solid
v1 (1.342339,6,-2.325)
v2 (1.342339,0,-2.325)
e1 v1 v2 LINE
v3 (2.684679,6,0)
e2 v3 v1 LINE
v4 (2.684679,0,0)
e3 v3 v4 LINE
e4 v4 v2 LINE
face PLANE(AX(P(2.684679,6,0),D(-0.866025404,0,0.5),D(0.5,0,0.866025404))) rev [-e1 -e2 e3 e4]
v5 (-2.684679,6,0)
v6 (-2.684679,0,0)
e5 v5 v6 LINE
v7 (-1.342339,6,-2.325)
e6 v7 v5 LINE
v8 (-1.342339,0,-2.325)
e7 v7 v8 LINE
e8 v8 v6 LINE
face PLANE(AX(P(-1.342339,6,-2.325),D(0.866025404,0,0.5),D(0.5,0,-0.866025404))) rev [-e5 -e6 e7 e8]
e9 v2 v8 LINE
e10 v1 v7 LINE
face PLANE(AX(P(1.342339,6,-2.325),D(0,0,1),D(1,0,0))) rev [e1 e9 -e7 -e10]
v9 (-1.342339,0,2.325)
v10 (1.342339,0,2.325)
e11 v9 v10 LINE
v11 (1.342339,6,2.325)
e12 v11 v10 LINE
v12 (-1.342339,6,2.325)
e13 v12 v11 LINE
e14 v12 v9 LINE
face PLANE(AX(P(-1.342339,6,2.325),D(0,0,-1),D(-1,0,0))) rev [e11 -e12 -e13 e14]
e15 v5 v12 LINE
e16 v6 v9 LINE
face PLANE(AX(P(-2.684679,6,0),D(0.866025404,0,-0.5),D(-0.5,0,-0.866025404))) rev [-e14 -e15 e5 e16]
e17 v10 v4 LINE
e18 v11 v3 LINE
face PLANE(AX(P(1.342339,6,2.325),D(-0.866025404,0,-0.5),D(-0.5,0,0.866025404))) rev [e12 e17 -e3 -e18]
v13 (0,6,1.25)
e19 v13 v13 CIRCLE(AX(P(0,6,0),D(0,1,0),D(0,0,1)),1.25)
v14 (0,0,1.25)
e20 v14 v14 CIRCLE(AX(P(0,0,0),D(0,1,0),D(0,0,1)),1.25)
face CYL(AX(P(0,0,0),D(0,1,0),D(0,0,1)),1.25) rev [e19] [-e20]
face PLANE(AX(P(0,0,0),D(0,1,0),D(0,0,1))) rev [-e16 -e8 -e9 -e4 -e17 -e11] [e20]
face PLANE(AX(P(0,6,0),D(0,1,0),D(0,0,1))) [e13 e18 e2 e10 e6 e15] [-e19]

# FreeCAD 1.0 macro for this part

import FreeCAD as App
import Part
import Sketcher
from FreeCAD import Vector
Q = App.Units.Quantity


def add_polygon(sketch, points):
    """Adds a closed chain of lines whose ends are joined by coincident constraints."""
    first, n = sketch.GeometryCount, len(points)
    for a, b in zip(points, points[1:] + points[:1]):
        sketch.addGeometry(Part.LineSegment(App.Vector(*a, 0), App.Vector(*b, 0)), False)
    for i in range(n):
        sketch.addConstraint(Sketcher.Constraint("Coincident", first + i, 2, first + (i + 1) % n, 1))

doc = App.newDocument("Part")
body = doc.addObject("PartDesign::Body", "Body")

sketch1 = body.newObject("Sketcher::SketchObject", "Sketch")
sketch1.AttachmentSupport = (doc.getObject("XZ_Plane"), [""])
sketch1.MapMode = "FlatFace"
add_polygon(sketch1, [(2.684679, 0), (1.342339, -2.325), (-1.342339, -2.325), (-2.684679, 0), (-1.342339, 2.325), (1.342339, 2.325)])
sketch1.addConstraint(Sketcher.Constraint("Horizontal", 1))
sketch1.addConstraint(Sketcher.Constraint("Horizontal", 4))
sketch1.addConstraint(Sketcher.Constraint("Symmetric", 0, 2, 3, 2, -1, 1))
sketch1.addConstraint(Sketcher.Constraint("Symmetric", 2, 2, 5, 2, -1, 1))
sketch1.addConstraint(Sketcher.Constraint("PointOnObject", 2, 2, -1))
sketch1.addConstraint(Sketcher.Constraint("Parallel", 2, 5))
sketch1.addConstraint(Sketcher.Constraint("Vertical", 1, 2, 3, 2))
sketch1.addConstraint(Sketcher.Constraint("Angle", 0, Q("-120 deg")))
sketch1.addConstraint(Sketcher.Constraint("DistanceY", 1, 2, 3, 2, 4.65))
sketch1.addConstraint(Sketcher.Constraint("DistanceX", 1, 2, 1, 1, 2.684679))
pad1 = body.newObject("PartDesign::Pad", "Pad")
pad1.Profile = sketch1
pad1.Length = 6
pad1.Reversed = True

sketch2 = body.newObject("Sketcher::SketchObject", "Sketch001")
sketch2.AttachmentSupport = (doc.getObject("XZ_Plane"), [""])
sketch2.MapMode = "FlatFace"
sketch2.AttachmentOffset = App.Placement(Vector(0, 0, -6), App.Rotation())
sketch2.addGeometry(Part.Circle(Vector(0, 0, 0), Vector(0, 0, 1), 1.25), False)
sketch2.addConstraint(Sketcher.Constraint("Coincident", 0, 3, -1, 1))
sketch2.addConstraint(Sketcher.Constraint("Diameter", 0, 2.5))
pocket1 = body.newObject("PartDesign::Pocket", "Pocket")
pocket1.Profile = sketch2
pocket1.Length = 6
pocket1.Reversed = True

doc.recompute()
